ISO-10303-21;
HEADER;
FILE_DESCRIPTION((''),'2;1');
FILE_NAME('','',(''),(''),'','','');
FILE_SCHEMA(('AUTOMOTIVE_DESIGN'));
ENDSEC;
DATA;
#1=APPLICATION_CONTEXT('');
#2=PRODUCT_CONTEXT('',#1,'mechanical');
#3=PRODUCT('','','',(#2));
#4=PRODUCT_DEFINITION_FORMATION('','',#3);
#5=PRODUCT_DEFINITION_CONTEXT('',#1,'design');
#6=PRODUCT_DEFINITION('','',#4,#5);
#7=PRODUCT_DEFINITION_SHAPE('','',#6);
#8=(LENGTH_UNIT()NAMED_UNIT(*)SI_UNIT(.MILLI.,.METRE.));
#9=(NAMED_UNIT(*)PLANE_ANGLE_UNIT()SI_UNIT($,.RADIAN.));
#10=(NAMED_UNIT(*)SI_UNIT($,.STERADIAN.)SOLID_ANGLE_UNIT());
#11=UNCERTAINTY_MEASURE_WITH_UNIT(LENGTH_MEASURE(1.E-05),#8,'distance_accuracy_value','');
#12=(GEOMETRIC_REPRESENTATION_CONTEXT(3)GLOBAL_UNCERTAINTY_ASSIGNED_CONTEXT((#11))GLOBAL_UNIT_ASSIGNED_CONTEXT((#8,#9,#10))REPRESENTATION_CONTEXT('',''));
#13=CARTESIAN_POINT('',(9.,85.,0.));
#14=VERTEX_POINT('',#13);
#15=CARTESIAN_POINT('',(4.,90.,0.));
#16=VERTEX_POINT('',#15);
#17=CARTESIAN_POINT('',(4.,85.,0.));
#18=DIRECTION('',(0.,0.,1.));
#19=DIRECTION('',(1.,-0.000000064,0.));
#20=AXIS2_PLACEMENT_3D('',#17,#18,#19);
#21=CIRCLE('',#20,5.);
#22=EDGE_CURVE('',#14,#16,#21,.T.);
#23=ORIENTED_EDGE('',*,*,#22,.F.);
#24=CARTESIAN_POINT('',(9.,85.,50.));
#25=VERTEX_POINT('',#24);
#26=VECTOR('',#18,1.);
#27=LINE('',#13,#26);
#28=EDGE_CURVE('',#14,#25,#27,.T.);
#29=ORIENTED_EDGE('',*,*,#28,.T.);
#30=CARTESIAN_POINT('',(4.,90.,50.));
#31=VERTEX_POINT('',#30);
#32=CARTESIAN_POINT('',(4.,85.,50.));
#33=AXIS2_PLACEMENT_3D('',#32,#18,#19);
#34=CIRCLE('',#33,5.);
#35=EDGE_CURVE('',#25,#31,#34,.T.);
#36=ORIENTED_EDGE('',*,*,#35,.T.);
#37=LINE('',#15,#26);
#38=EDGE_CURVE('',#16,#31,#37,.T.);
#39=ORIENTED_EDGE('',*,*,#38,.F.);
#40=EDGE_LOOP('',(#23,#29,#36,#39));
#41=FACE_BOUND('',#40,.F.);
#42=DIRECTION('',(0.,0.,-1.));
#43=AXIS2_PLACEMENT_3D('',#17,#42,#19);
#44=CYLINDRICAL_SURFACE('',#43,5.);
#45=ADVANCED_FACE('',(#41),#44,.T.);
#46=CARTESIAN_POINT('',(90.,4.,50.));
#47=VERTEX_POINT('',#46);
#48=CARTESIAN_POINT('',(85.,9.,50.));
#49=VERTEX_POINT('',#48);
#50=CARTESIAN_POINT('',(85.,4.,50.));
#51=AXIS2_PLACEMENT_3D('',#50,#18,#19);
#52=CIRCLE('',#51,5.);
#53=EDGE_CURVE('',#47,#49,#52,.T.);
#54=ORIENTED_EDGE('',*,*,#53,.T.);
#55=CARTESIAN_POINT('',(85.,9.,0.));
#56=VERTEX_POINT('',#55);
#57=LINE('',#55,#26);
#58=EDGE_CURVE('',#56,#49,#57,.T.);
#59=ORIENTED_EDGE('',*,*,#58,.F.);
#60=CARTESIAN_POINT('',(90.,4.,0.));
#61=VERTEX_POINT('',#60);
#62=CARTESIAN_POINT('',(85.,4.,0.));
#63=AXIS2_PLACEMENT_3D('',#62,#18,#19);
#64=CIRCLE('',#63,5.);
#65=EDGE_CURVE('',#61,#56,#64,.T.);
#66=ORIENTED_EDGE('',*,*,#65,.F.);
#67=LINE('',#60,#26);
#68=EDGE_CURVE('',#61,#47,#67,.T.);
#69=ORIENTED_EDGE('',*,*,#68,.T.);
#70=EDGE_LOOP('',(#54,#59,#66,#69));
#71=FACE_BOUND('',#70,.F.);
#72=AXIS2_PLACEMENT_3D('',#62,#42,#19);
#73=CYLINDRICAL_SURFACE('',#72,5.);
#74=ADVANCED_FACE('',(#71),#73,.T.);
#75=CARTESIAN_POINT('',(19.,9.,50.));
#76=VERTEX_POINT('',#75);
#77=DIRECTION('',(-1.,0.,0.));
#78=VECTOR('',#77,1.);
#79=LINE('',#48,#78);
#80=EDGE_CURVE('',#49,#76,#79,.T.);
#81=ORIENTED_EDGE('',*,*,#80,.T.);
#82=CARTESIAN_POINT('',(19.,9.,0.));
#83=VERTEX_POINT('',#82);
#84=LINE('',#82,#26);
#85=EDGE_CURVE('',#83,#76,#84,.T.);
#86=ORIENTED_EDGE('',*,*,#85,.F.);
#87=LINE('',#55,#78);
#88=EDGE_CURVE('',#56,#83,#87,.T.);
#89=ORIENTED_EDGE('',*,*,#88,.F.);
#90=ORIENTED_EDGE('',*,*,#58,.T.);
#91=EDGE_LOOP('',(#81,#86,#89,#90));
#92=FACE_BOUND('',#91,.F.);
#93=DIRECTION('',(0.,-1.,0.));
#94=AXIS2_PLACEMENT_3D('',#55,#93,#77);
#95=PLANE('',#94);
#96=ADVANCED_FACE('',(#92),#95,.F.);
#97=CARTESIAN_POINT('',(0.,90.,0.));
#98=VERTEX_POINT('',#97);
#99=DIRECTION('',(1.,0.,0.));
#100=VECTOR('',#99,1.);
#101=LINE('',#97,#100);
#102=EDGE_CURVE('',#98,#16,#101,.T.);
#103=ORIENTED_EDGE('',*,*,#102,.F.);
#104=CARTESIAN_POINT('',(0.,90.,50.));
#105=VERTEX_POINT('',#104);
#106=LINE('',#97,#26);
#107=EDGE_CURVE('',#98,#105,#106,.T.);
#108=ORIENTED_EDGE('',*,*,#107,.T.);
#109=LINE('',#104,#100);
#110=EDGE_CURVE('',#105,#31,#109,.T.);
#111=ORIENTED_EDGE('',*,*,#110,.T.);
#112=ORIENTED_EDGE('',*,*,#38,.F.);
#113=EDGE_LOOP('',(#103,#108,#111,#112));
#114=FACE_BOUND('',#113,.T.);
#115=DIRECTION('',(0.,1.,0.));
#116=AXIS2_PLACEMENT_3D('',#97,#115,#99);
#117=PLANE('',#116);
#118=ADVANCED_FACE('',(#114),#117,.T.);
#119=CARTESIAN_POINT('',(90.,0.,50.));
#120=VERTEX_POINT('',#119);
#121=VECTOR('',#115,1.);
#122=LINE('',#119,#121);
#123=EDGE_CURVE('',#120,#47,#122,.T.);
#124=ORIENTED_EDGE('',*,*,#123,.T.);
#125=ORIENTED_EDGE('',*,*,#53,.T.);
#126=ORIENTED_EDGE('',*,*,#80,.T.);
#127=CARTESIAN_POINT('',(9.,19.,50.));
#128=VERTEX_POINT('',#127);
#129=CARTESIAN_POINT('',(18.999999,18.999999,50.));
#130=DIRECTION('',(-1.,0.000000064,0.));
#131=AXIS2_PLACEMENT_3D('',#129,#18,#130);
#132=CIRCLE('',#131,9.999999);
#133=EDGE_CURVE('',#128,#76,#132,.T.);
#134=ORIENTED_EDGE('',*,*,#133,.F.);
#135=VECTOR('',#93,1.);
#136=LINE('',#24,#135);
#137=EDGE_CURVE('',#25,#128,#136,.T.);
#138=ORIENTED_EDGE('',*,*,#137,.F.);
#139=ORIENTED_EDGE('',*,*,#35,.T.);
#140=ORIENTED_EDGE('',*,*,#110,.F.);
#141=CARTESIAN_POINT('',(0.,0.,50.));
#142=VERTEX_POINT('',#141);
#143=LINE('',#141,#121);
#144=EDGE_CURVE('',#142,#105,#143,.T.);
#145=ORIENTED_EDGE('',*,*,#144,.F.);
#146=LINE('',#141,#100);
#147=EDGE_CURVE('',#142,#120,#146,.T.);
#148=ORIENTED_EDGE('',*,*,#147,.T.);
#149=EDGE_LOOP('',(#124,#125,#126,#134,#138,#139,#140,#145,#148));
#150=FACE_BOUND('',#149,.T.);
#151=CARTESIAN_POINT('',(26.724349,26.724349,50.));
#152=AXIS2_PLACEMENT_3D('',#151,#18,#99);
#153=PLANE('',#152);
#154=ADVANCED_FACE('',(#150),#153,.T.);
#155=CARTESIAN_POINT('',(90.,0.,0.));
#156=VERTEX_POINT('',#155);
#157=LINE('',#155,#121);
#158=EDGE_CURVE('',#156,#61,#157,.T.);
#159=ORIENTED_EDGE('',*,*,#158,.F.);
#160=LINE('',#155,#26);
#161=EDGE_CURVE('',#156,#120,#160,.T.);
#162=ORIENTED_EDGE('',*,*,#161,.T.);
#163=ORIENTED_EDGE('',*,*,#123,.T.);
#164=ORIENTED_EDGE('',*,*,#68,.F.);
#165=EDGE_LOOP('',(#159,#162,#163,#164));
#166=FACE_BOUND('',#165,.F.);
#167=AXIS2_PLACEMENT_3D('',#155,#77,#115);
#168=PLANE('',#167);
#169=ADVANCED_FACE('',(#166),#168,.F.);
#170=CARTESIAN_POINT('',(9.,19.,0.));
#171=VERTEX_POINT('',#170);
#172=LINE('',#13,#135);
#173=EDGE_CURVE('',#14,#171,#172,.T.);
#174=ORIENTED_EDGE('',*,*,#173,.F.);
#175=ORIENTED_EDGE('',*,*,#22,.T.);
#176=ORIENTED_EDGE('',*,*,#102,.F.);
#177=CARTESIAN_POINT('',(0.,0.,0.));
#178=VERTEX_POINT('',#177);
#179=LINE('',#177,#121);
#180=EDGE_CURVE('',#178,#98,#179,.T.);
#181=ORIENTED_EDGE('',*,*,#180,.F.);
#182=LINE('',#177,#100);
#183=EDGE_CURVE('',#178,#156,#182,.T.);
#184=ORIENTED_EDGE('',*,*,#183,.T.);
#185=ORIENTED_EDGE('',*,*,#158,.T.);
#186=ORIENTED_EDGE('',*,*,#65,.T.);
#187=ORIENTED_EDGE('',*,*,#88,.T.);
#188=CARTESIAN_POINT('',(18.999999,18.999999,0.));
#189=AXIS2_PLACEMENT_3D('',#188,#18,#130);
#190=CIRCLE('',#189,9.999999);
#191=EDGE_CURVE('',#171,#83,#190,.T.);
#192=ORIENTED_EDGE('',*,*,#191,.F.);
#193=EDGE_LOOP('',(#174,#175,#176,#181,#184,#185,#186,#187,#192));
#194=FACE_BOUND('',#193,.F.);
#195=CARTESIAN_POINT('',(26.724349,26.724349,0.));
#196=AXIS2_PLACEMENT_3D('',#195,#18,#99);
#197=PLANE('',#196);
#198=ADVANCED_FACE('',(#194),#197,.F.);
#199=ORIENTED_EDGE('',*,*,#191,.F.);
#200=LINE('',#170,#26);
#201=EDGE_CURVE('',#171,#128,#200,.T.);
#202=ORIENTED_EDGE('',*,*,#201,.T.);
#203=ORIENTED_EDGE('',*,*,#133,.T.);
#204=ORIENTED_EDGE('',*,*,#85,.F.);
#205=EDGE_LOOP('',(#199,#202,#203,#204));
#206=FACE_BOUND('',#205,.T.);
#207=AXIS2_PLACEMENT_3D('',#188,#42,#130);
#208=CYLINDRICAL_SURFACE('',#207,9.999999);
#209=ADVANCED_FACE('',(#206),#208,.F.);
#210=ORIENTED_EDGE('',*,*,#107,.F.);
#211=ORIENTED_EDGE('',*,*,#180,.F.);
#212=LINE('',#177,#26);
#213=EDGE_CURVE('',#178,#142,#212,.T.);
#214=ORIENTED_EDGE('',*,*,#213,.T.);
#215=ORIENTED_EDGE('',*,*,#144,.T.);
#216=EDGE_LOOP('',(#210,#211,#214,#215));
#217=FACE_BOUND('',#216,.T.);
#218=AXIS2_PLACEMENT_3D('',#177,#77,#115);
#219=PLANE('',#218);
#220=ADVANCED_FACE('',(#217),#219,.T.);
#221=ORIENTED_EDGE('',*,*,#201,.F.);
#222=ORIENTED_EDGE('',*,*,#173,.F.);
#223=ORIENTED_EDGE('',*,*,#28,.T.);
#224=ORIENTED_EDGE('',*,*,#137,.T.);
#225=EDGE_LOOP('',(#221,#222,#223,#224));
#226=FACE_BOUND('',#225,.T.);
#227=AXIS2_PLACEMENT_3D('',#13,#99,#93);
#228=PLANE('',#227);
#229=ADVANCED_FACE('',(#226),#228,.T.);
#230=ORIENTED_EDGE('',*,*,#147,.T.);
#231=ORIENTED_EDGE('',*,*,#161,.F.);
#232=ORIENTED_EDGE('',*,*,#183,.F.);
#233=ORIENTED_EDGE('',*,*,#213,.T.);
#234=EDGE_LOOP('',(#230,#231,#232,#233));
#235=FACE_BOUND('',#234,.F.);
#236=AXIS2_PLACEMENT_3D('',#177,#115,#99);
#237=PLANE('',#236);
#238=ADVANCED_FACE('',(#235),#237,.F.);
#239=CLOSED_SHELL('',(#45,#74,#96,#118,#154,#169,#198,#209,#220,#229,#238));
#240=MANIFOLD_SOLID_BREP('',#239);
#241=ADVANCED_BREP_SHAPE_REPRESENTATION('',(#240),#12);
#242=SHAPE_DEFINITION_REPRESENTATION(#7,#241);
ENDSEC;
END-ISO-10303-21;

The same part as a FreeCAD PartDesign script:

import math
import FreeCAD as App
import Part
import Sketcher
Q = App.Units.Quantity

doc = App.newDocument("Part")
body = doc.addObject("PartDesign::Body", "Body")

# Sketch on XY plane
sketch1 = body.newObject("Sketcher::SketchObject", "Sketch")
sketch1.AttachmentSupport = (doc.getObject("XY_Plane"), [""])
sketch1.MapMode = "FlatFace"
sketch1.addGeometry([
    Part.LineSegment(App.Vector(0, 0, 0), App.Vector(90, 0, 0)),  # 0
    Part.LineSegment(App.Vector(90, 0, 0), App.Vector(90, 4, 0)),  # 1
    Part.ArcOfCircle(Part.Circle(App.Vector(85, 4, 0), App.Vector(0, 0, 1), 5), math.radians(-0.000004), math.radians(90.000004)),  # 2
    Part.LineSegment(App.Vector(85, 9, 0), App.Vector(19, 9, 0)),  # 3
    Part.ArcOfCircle(Part.Circle(App.Vector(18.999999, 18.999999, 0), App.Vector(0, 0, 1), 9.999999), math.radians(179.999996), math.radians(270.000004)),  # 4
    Part.LineSegment(App.Vector(9, 19, 0), App.Vector(9, 85, 0)),  # 5
    Part.ArcOfCircle(Part.Circle(App.Vector(4, 85, 0), App.Vector(0, 0, 1), 5), math.radians(-0.000004), math.radians(90.000004)),  # 6
    Part.LineSegment(App.Vector(4, 90, 0), App.Vector(0, 90, 0)),  # 7
    Part.LineSegment(App.Vector(0, 90, 0), App.Vector(0, 0, 0)),  # 8
], False)
sketch1.addConstraint([
    Sketcher.Constraint("Coincident", 0, 2, 1, 1),
    Sketcher.Constraint("Tangent", 1, 2, 2, 1),
    Sketcher.Constraint("Tangent", 2, 2, 3, 1),
    Sketcher.Constraint("Tangent", 3, 2, 4, 2),
    Sketcher.Constraint("Tangent", 4, 1, 5, 1),
    Sketcher.Constraint("Tangent", 5, 2, 6, 1),
    Sketcher.Constraint("Tangent", 6, 2, 7, 1),
    Sketcher.Constraint("Coincident", 7, 2, 8, 1),
    Sketcher.Constraint("Coincident", 8, 2, 0, 1),
    Sketcher.Constraint("Horizontal", 0),
    Sketcher.Constraint("Vertical", 1),
    Sketcher.Constraint("Horizontal", 3),
    Sketcher.Constraint("Vertical", 5),
    Sketcher.Constraint("Horizontal", 7),
    Sketcher.Constraint("Vertical", 8),
    Sketcher.Constraint("Coincident", 8, 2, -1, 1),
    Sketcher.Constraint("Equal", 2, 6),
    Sketcher.Constraint("Equal", 7, 1),
    Sketcher.Constraint("Equal", 3, 5),
    Sketcher.Constraint("Radius", 2, Q("5 mm")),
    Sketcher.Constraint("Radius", 4, Q("9.999999 mm")),
    Sketcher.Constraint("DistanceX", 0, 1, 0, 2, Q("90 mm")),
    Sketcher.Constraint("DistanceX", 3, 2, 3, 1, Q("66 mm")),
])
pad1 = body.newObject("PartDesign::Pad", "Pad")
pad1.Profile = sketch1
pad1.Length = 50

doc.recompute()
